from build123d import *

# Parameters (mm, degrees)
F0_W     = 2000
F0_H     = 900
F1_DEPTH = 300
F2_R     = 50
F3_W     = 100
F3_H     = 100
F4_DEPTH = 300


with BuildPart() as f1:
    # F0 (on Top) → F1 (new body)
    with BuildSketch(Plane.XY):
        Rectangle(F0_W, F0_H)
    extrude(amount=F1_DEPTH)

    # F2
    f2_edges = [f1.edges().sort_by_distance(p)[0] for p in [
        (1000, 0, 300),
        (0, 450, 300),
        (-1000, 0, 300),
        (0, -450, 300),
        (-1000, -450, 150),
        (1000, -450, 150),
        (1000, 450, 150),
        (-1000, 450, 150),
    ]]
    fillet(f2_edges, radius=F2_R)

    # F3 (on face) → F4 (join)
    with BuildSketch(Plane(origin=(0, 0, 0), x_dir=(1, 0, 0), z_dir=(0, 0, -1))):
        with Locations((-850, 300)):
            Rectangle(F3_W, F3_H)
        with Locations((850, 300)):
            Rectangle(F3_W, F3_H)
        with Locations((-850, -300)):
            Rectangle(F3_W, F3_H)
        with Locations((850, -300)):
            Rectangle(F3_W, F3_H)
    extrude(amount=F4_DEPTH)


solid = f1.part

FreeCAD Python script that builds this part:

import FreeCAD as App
import Part
import Sketcher
from FreeCAD import Vector


def edges_at(feature, points):
    """Names of the edges that pass closest to the given points."""
    edges = feature.Shape.Edges
    near = lambda p: min(range(len(edges)), key=lambda i: edges[i].distToShape(Part.Vertex(*p))[0])
    return sorted({f"Edge{near(p) + 1}" for p in points})


def add_polygon(sketch, points):
    """Adds a closed chain of lines whose ends are joined by coincident constraints."""
    first, n = sketch.GeometryCount, len(points)
    for a, b in zip(points, points[1:] + points[:1]):
        sketch.addGeometry(Part.LineSegment(App.Vector(*a, 0), App.Vector(*b, 0)), False)
    for i in range(n):
        sketch.addConstraint(Sketcher.Constraint("Coincident", first + i, 2, first + (i + 1) % n, 1))

doc = App.newDocument("Part")
body = doc.addObject("PartDesign::Body", "Body")

sketch1 = body.newObject("Sketcher::SketchObject", "Sketch")
sketch1.AttachmentSupport = (doc.getObject("XY_Plane"), [""])
sketch1.MapMode = "FlatFace"
add_polygon(sketch1, [(-1000, 450), (-1000, -450), (1000, -450), (1000, 450)])
sketch1.addConstraint([
    Sketcher.Constraint("Vertical", 0),
    Sketcher.Constraint("Horizontal", 1),
    Sketcher.Constraint("Vertical", 2),
    Sketcher.Constraint("Horizontal", 3),
    Sketcher.Constraint("Symmetric", 0, 2, 2, 2, -1, 1),
    Sketcher.Constraint("DistanceX", 1, 1, 1, 2, 2000.0),
    Sketcher.Constraint("DistanceY", 0, 2, 0, 1, 900.0),
])
pad1 = body.newObject("PartDesign::Pad", "Pad")
pad1.Profile = sketch1
pad1.Length = 300
doc.recompute()

fillet = body.newObject("PartDesign::Fillet", "Fillet")
fillet.Base = (pad1, edges_at(pad1, [
    (1000, 0, 300),
    (0, 450, 300),
    (-1000, 0, 300),
    (0, -450, 300),
    (-1000, -450, 150),
    (1000, -450, 150),
    (1000, 450, 150),
    (-1000, 450, 150),
]))
fillet.Radius = 50

sketch2 = body.newObject("Sketcher::SketchObject", "Sketch001")
sketch2.AttachmentSupport = (doc.getObject("XY_Plane"), [""])
sketch2.MapMode = "FlatFace"
add_polygon(sketch2, [(-900, -350), (-900, -250), (-800, -250), (-800, -350)])
add_polygon(sketch2, [(800, -350), (800, -250), (900, -250), (900, -350)])
add_polygon(sketch2, [(-900, 250), (-900, 350), (-800, 350), (-800, 250)])
add_polygon(sketch2, [(800, 250), (800, 350), (900, 350), (900, 250)])
sketch2.addConstraint([
    Sketcher.Constraint("Vertical", 0),
    Sketcher.Constraint("Horizontal", 1),
    Sketcher.Constraint("Vertical", 2),
    Sketcher.Constraint("Horizontal", 3),
    Sketcher.Constraint("Vertical", 4),
    Sketcher.Constraint("Horizontal", 5),
    Sketcher.Constraint("Vertical", 6),
    Sketcher.Constraint("Horizontal", 7),
    Sketcher.Constraint("Vertical", 8),
    Sketcher.Constraint("Horizontal", 9),
    Sketcher.Constraint("Vertical", 10),
    Sketcher.Constraint("Horizontal", 11),
    Sketcher.Constraint("Vertical", 12),
    Sketcher.Constraint("Horizontal", 13),
    Sketcher.Constraint("Vertical", 14),
    Sketcher.Constraint("Horizontal", 15),
    Sketcher.Constraint("Symmetric", 6, 2, 8, 2, -1, 1),
    Sketcher.Constraint("Symmetric", 4, 2, 10, 2, -1, 1),
    Sketcher.Constraint("Symmetric", 2, 2, 12, 2, -1, 1),
    Sketcher.Constraint("Symmetric", 0, 2, 14, 2, -1, 1),
    Sketcher.Constraint("Symmetric", 1, 2, 4, 2, -2),
    Sketcher.Constraint("Symmetric", 3, 2, 6, 2, -2),
    Sketcher.Constraint("Equal", 15, 0),
    Sketcher.Constraint("DistanceX", 1, 1, 1, 2, 100.0),
    Sketcher.Constraint("DistanceX", 0, 2, -1, 1, 900.0),
    Sketcher.Constraint("DistanceY", 0, 2, -1, 1, 250.0),
])
pad2 = body.newObject("PartDesign::Pad", "Pad001")
pad2.Profile = sketch2
pad2.Length = 300
pad2.Reversed = True

doc.recompute()
